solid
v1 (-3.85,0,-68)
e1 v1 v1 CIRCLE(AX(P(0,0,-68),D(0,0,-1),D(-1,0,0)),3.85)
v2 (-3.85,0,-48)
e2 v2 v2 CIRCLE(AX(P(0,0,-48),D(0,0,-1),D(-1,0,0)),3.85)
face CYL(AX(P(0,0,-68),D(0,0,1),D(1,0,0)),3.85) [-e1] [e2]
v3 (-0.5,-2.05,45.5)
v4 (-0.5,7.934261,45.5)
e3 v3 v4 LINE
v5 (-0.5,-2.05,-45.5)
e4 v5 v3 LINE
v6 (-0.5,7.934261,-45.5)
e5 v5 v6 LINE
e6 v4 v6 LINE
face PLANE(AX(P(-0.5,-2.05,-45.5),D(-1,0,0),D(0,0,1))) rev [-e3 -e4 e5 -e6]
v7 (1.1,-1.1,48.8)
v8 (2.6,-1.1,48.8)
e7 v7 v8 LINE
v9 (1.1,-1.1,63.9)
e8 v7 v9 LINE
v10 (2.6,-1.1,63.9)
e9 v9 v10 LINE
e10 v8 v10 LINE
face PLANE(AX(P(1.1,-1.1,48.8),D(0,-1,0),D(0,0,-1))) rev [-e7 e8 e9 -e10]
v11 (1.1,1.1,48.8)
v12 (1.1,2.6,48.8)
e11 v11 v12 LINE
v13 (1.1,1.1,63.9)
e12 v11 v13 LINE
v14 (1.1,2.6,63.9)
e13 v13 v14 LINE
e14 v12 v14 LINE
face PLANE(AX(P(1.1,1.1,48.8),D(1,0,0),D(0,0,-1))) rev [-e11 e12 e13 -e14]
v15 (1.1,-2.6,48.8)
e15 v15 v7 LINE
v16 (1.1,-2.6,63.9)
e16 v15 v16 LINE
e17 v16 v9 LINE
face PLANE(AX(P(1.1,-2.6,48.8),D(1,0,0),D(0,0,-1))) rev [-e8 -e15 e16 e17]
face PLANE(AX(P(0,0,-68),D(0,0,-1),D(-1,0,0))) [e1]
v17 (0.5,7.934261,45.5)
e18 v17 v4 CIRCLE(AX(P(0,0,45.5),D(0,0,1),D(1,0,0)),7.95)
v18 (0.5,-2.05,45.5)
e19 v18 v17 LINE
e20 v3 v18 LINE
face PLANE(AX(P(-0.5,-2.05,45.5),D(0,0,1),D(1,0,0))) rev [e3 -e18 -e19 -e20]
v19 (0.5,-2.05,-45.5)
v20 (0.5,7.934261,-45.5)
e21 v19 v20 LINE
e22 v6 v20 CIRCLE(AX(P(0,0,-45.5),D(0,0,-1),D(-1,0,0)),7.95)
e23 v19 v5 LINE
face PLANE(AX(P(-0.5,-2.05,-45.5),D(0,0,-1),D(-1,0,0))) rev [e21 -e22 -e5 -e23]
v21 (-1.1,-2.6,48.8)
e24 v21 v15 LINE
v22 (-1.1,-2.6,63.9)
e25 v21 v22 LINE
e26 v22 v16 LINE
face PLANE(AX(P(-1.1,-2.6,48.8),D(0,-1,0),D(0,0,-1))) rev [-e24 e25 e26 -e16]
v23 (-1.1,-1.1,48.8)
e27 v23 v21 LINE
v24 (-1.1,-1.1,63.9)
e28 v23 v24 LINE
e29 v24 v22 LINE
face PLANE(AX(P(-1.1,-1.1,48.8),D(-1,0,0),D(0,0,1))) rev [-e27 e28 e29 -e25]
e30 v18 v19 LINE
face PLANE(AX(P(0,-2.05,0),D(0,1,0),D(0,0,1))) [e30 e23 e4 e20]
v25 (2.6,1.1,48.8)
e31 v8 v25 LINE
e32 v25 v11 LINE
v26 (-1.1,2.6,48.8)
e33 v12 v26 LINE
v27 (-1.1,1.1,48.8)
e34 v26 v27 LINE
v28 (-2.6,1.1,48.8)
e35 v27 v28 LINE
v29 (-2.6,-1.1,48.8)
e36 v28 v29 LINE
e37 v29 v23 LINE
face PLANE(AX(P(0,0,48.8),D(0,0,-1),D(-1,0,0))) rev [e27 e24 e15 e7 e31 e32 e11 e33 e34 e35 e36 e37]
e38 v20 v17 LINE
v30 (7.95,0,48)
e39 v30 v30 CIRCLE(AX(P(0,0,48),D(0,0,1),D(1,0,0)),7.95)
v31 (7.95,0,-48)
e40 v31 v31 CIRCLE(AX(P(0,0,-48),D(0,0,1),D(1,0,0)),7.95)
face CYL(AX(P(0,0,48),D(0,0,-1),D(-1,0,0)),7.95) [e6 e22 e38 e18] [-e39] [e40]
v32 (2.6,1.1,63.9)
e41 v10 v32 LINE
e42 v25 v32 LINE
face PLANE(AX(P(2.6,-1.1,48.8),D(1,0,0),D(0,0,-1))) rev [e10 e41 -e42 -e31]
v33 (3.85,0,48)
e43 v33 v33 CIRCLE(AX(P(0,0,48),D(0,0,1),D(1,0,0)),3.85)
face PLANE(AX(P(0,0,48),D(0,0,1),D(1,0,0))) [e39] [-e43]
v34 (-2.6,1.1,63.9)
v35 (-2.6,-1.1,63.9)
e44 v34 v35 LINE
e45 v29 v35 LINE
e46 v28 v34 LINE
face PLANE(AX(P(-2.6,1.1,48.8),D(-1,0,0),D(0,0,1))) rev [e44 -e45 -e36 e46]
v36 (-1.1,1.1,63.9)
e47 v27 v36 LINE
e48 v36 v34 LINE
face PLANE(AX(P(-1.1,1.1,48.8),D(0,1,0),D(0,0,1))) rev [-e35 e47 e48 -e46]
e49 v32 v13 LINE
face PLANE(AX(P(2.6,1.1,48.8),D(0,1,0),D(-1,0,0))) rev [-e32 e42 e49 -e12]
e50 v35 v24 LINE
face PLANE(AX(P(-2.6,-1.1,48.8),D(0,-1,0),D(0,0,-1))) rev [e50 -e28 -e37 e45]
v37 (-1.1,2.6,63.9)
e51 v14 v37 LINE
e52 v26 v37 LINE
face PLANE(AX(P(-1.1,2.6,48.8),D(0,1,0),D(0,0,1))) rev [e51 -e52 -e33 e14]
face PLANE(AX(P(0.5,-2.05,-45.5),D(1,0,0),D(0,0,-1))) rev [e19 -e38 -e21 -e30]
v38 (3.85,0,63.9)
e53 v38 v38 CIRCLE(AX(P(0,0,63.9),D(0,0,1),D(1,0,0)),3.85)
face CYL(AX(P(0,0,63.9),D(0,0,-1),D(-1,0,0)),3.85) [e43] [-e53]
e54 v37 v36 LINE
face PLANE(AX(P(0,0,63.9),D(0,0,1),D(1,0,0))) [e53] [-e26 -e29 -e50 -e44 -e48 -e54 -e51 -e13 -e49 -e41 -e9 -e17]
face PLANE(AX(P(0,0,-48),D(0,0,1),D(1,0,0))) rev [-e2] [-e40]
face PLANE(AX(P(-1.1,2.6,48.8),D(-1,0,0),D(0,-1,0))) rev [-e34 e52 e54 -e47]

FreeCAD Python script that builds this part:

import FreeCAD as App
import Part
import Sketcher

V = App.Vector

doc = App.newDocument("Part")
body = doc.addObject("PartDesign::Body", "Body")

sketch1 = doc.addObject("Sketcher::SketchObject", "Sketch")
body.addObject(sketch1)
sketch1.AttachmentSupport = (doc.XY_Plane, [""])
sketch1.MapMode = "FlatFace"
sketch1.addGeometry(Part.Circle(V(0, 0, 0), V(0, 0, 1), 8), False)
sketch1.addConstraint([
    Sketcher.Constraint("Coincident", 0, 3, -1, 1),
    Sketcher.Constraint("Diameter", 0, 15.9),
])
pad1 = doc.addObject("PartDesign::Pad", "Pad")
body.addObject(pad1)
pad1.Profile = sketch1
pad1.Length = 96
pad1.Midplane = True

sketch2 = doc.addObject("Sketcher::SketchObject", "Sketch001")
body.addObject(sketch2)
sketch2.AttachmentSupport = (doc.XY_Plane, [""])
sketch2.MapMode = "FlatFace"
sketch2.AttachmentOffset = App.Placement(V(0, 0, 48), App.Rotation())
sketch2.addGeometry(Part.Circle(V(0, 0, 0), V(0, 0, 1), 3.9), False)
sketch2.addConstraint([
    Sketcher.Constraint("Coincident", 0, 3, -1, 1),
    Sketcher.Constraint("Diameter", 0, 7.7),
])
pad2 = doc.addObject("PartDesign::Pad", "Pad001")
body.addObject(pad2)
pad2.Profile = sketch2
pad2.Length = 15.9

sketch3 = doc.addObject("Sketcher::SketchObject", "Sketch002")
body.addObject(sketch3)
sketch3.AttachmentSupport = (doc.XY_Plane, [""])
sketch3.MapMode = "FlatFace"
sketch3.AttachmentOffset = App.Placement(V(0, 0, -68), App.Rotation())
sketch3.addGeometry(Part.Circle(V(0, 0, 0), V(0, 0, 1), 3.9), False)
sketch3.addConstraint([
    Sketcher.Constraint("Coincident", 0, 3, -1, 1),
    Sketcher.Constraint("Diameter", 0, 7.7),
])
pad3 = doc.addObject("PartDesign::Pad", "Pad002")
body.addObject(pad3)
pad3.Profile = sketch3
pad3.Length = 20

sketch4 = doc.addObject("Sketcher::SketchObject", "Sketch003")
body.addObject(sketch4)
sketch4.AttachmentSupport = (doc.XY_Plane, [""])
sketch4.MapMode = "FlatFace"
sketch4.AttachmentOffset = App.Placement(V(0, 0, 63.9), App.Rotation())
sketch4.addGeometry([
    Part.LineSegment(V(1.1, 2.6, 0), V(-1.1, 2.6, 0)),
    Part.LineSegment(V(-1.1, 2.6, 0), V(-1.1, 1.1, 0)),
    Part.LineSegment(V(-1.1, 1.1, 0), V(-2.6, 1.1, 0)),
    Part.LineSegment(V(-2.6, 1.1, 0), V(-2.6, -1.1, 0)),
    Part.LineSegment(V(-2.6, -1.1, 0), V(-1.1, -1.1, 0)),
    Part.LineSegment(V(-1.1, -1.1, 0), V(-1.1, -2.6, 0)),
    Part.LineSegment(V(-1.1, -2.6, 0), V(1.1, -2.6, 0)),
    Part.LineSegment(V(1.1, -2.6, 0), V(1.1, -1.1, 0)),
    Part.LineSegment(V(1.1, -1.1, 0), V(2.6, -1.1, 0)),
    Part.LineSegment(V(2.6, -1.1, 0), V(2.6, 1.1, 0)),
    Part.LineSegment(V(2.6, 1.1, 0), V(1.1, 1.1, 0)),
    Part.LineSegment(V(1.1, 1.1, 0), V(1.1, 2.6, 0)),
], False)
sketch4.addConstraint([
    Sketcher.Constraint("Coincident", 0, 2, 1, 1),
    Sketcher.Constraint("Coincident", 1, 2, 2, 1),
    Sketcher.Constraint("Coincident", 2, 2, 3, 1),
    Sketcher.Constraint("Coincident", 3, 2, 4, 1),
    Sketcher.Constraint("Coincident", 4, 2, 5, 1),
    Sketcher.Constraint("Coincident", 5, 2, 6, 1),
    Sketcher.Constraint("Coincident", 6, 2, 7, 1),
    Sketcher.Constraint("Coincident", 7, 2, 8, 1),
    Sketcher.Constraint("Coincident", 8, 2, 9, 1),
    Sketcher.Constraint("Coincident", 9, 2, 10, 1),
    Sketcher.Constraint("Coincident", 10, 2, 11, 1),
    Sketcher.Constraint("Coincident", 11, 2, 0, 1),
    Sketcher.Constraint("Horizontal", 0),
    Sketcher.Constraint("Vertical", 1),
    Sketcher.Constraint("Horizontal", 2),
    Sketcher.Constraint("Vertical", 3),
    Sketcher.Constraint("Horizontal", 4),
    Sketcher.Constraint("Vertical", 5),
    Sketcher.Constraint("Horizontal", 6),
    Sketcher.Constraint("Vertical", 7),
    Sketcher.Constraint("Horizontal", 8),
    Sketcher.Constraint("Vertical", 9),
    Sketcher.Constraint("Horizontal", 10),
    Sketcher.Constraint("Vertical", 11),
    Sketcher.Constraint("Symmetric", 0, 2, 6, 2, -1, 1),
    Sketcher.Constraint("Symmetric", 2, 2, 8, 2, -1, 1),
    Sketcher.Constraint("Symmetric", 4, 2, 10, 2, -1, 1),
    Sketcher.Constraint("Symmetric", 4, 2, 7, 2, -2),
    Sketcher.Constraint("Equal", 10, 1),
    Sketcher.Constraint("Equal", 6, 3),
    Sketcher.Constraint("DistanceX", 0, 2, 0, 1, 2.2),
    Sketcher.Constraint("DistanceX", 2, 2, 2, 1, 1.5),
])
pocket1 = doc.addObject("PartDesign::Pocket", "Pocket")
body.addObject(pocket1)
pocket1.Profile = sketch4
pocket1.Length = 15.1

sketch5 = doc.addObject("Sketcher::SketchObject", "Sketch004")
body.addObject(sketch5)
sketch5.AttachmentSupport = (doc.XZ_Plane, [""])
sketch5.MapMode = "FlatFace"
sketch5.AttachmentOffset = App.Placement(V(0, 0, -7.95), App.Rotation())
sketch5.addGeometry([
    Part.LineSegment(V(-0.5, -45.5, 0), V(-0.5, 45.5, 0)),
    Part.LineSegment(V(-0.5, 45.5, 0), V(0.5, 45.5, 0)),
    Part.LineSegment(V(0.5, 45.5, 0), V(0.5, -45.5, 0)),
    Part.LineSegment(V(0.5, -45.5, 0), V(-0.5, -45.5, 0)),
], False)
sketch5.addConstraint([
    Sketcher.Constraint("Coincident", 0, 2, 1, 1),
    Sketcher.Constraint("Coincident", 1, 2, 2, 1),
    Sketcher.Constraint("Coincident", 2, 2, 3, 1),
    Sketcher.Constraint("Coincident", 3, 2, 0, 1),
    Sketcher.Constraint("Vertical", 0),
    Sketcher.Constraint("Horizontal", 1),
    Sketcher.Constraint("Vertical", 2),
    Sketcher.Constraint("Horizontal", 3),
    Sketcher.Constraint("Symmetric", 0, 2, 2, 2, -1, 1),
    Sketcher.Constraint("DistanceX", 1, 1, 1, 2, 1.0),
    Sketcher.Constraint("DistanceY", 0, 1, 0, 2, 91.0),
])
pocket2 = doc.addObject("PartDesign::Pocket", "Pocket001")
body.addObject(pocket2)
pocket2.Profile = sketch5
pocket2.Length = 10
pocket2.Reversed = True

doc.recompute()
